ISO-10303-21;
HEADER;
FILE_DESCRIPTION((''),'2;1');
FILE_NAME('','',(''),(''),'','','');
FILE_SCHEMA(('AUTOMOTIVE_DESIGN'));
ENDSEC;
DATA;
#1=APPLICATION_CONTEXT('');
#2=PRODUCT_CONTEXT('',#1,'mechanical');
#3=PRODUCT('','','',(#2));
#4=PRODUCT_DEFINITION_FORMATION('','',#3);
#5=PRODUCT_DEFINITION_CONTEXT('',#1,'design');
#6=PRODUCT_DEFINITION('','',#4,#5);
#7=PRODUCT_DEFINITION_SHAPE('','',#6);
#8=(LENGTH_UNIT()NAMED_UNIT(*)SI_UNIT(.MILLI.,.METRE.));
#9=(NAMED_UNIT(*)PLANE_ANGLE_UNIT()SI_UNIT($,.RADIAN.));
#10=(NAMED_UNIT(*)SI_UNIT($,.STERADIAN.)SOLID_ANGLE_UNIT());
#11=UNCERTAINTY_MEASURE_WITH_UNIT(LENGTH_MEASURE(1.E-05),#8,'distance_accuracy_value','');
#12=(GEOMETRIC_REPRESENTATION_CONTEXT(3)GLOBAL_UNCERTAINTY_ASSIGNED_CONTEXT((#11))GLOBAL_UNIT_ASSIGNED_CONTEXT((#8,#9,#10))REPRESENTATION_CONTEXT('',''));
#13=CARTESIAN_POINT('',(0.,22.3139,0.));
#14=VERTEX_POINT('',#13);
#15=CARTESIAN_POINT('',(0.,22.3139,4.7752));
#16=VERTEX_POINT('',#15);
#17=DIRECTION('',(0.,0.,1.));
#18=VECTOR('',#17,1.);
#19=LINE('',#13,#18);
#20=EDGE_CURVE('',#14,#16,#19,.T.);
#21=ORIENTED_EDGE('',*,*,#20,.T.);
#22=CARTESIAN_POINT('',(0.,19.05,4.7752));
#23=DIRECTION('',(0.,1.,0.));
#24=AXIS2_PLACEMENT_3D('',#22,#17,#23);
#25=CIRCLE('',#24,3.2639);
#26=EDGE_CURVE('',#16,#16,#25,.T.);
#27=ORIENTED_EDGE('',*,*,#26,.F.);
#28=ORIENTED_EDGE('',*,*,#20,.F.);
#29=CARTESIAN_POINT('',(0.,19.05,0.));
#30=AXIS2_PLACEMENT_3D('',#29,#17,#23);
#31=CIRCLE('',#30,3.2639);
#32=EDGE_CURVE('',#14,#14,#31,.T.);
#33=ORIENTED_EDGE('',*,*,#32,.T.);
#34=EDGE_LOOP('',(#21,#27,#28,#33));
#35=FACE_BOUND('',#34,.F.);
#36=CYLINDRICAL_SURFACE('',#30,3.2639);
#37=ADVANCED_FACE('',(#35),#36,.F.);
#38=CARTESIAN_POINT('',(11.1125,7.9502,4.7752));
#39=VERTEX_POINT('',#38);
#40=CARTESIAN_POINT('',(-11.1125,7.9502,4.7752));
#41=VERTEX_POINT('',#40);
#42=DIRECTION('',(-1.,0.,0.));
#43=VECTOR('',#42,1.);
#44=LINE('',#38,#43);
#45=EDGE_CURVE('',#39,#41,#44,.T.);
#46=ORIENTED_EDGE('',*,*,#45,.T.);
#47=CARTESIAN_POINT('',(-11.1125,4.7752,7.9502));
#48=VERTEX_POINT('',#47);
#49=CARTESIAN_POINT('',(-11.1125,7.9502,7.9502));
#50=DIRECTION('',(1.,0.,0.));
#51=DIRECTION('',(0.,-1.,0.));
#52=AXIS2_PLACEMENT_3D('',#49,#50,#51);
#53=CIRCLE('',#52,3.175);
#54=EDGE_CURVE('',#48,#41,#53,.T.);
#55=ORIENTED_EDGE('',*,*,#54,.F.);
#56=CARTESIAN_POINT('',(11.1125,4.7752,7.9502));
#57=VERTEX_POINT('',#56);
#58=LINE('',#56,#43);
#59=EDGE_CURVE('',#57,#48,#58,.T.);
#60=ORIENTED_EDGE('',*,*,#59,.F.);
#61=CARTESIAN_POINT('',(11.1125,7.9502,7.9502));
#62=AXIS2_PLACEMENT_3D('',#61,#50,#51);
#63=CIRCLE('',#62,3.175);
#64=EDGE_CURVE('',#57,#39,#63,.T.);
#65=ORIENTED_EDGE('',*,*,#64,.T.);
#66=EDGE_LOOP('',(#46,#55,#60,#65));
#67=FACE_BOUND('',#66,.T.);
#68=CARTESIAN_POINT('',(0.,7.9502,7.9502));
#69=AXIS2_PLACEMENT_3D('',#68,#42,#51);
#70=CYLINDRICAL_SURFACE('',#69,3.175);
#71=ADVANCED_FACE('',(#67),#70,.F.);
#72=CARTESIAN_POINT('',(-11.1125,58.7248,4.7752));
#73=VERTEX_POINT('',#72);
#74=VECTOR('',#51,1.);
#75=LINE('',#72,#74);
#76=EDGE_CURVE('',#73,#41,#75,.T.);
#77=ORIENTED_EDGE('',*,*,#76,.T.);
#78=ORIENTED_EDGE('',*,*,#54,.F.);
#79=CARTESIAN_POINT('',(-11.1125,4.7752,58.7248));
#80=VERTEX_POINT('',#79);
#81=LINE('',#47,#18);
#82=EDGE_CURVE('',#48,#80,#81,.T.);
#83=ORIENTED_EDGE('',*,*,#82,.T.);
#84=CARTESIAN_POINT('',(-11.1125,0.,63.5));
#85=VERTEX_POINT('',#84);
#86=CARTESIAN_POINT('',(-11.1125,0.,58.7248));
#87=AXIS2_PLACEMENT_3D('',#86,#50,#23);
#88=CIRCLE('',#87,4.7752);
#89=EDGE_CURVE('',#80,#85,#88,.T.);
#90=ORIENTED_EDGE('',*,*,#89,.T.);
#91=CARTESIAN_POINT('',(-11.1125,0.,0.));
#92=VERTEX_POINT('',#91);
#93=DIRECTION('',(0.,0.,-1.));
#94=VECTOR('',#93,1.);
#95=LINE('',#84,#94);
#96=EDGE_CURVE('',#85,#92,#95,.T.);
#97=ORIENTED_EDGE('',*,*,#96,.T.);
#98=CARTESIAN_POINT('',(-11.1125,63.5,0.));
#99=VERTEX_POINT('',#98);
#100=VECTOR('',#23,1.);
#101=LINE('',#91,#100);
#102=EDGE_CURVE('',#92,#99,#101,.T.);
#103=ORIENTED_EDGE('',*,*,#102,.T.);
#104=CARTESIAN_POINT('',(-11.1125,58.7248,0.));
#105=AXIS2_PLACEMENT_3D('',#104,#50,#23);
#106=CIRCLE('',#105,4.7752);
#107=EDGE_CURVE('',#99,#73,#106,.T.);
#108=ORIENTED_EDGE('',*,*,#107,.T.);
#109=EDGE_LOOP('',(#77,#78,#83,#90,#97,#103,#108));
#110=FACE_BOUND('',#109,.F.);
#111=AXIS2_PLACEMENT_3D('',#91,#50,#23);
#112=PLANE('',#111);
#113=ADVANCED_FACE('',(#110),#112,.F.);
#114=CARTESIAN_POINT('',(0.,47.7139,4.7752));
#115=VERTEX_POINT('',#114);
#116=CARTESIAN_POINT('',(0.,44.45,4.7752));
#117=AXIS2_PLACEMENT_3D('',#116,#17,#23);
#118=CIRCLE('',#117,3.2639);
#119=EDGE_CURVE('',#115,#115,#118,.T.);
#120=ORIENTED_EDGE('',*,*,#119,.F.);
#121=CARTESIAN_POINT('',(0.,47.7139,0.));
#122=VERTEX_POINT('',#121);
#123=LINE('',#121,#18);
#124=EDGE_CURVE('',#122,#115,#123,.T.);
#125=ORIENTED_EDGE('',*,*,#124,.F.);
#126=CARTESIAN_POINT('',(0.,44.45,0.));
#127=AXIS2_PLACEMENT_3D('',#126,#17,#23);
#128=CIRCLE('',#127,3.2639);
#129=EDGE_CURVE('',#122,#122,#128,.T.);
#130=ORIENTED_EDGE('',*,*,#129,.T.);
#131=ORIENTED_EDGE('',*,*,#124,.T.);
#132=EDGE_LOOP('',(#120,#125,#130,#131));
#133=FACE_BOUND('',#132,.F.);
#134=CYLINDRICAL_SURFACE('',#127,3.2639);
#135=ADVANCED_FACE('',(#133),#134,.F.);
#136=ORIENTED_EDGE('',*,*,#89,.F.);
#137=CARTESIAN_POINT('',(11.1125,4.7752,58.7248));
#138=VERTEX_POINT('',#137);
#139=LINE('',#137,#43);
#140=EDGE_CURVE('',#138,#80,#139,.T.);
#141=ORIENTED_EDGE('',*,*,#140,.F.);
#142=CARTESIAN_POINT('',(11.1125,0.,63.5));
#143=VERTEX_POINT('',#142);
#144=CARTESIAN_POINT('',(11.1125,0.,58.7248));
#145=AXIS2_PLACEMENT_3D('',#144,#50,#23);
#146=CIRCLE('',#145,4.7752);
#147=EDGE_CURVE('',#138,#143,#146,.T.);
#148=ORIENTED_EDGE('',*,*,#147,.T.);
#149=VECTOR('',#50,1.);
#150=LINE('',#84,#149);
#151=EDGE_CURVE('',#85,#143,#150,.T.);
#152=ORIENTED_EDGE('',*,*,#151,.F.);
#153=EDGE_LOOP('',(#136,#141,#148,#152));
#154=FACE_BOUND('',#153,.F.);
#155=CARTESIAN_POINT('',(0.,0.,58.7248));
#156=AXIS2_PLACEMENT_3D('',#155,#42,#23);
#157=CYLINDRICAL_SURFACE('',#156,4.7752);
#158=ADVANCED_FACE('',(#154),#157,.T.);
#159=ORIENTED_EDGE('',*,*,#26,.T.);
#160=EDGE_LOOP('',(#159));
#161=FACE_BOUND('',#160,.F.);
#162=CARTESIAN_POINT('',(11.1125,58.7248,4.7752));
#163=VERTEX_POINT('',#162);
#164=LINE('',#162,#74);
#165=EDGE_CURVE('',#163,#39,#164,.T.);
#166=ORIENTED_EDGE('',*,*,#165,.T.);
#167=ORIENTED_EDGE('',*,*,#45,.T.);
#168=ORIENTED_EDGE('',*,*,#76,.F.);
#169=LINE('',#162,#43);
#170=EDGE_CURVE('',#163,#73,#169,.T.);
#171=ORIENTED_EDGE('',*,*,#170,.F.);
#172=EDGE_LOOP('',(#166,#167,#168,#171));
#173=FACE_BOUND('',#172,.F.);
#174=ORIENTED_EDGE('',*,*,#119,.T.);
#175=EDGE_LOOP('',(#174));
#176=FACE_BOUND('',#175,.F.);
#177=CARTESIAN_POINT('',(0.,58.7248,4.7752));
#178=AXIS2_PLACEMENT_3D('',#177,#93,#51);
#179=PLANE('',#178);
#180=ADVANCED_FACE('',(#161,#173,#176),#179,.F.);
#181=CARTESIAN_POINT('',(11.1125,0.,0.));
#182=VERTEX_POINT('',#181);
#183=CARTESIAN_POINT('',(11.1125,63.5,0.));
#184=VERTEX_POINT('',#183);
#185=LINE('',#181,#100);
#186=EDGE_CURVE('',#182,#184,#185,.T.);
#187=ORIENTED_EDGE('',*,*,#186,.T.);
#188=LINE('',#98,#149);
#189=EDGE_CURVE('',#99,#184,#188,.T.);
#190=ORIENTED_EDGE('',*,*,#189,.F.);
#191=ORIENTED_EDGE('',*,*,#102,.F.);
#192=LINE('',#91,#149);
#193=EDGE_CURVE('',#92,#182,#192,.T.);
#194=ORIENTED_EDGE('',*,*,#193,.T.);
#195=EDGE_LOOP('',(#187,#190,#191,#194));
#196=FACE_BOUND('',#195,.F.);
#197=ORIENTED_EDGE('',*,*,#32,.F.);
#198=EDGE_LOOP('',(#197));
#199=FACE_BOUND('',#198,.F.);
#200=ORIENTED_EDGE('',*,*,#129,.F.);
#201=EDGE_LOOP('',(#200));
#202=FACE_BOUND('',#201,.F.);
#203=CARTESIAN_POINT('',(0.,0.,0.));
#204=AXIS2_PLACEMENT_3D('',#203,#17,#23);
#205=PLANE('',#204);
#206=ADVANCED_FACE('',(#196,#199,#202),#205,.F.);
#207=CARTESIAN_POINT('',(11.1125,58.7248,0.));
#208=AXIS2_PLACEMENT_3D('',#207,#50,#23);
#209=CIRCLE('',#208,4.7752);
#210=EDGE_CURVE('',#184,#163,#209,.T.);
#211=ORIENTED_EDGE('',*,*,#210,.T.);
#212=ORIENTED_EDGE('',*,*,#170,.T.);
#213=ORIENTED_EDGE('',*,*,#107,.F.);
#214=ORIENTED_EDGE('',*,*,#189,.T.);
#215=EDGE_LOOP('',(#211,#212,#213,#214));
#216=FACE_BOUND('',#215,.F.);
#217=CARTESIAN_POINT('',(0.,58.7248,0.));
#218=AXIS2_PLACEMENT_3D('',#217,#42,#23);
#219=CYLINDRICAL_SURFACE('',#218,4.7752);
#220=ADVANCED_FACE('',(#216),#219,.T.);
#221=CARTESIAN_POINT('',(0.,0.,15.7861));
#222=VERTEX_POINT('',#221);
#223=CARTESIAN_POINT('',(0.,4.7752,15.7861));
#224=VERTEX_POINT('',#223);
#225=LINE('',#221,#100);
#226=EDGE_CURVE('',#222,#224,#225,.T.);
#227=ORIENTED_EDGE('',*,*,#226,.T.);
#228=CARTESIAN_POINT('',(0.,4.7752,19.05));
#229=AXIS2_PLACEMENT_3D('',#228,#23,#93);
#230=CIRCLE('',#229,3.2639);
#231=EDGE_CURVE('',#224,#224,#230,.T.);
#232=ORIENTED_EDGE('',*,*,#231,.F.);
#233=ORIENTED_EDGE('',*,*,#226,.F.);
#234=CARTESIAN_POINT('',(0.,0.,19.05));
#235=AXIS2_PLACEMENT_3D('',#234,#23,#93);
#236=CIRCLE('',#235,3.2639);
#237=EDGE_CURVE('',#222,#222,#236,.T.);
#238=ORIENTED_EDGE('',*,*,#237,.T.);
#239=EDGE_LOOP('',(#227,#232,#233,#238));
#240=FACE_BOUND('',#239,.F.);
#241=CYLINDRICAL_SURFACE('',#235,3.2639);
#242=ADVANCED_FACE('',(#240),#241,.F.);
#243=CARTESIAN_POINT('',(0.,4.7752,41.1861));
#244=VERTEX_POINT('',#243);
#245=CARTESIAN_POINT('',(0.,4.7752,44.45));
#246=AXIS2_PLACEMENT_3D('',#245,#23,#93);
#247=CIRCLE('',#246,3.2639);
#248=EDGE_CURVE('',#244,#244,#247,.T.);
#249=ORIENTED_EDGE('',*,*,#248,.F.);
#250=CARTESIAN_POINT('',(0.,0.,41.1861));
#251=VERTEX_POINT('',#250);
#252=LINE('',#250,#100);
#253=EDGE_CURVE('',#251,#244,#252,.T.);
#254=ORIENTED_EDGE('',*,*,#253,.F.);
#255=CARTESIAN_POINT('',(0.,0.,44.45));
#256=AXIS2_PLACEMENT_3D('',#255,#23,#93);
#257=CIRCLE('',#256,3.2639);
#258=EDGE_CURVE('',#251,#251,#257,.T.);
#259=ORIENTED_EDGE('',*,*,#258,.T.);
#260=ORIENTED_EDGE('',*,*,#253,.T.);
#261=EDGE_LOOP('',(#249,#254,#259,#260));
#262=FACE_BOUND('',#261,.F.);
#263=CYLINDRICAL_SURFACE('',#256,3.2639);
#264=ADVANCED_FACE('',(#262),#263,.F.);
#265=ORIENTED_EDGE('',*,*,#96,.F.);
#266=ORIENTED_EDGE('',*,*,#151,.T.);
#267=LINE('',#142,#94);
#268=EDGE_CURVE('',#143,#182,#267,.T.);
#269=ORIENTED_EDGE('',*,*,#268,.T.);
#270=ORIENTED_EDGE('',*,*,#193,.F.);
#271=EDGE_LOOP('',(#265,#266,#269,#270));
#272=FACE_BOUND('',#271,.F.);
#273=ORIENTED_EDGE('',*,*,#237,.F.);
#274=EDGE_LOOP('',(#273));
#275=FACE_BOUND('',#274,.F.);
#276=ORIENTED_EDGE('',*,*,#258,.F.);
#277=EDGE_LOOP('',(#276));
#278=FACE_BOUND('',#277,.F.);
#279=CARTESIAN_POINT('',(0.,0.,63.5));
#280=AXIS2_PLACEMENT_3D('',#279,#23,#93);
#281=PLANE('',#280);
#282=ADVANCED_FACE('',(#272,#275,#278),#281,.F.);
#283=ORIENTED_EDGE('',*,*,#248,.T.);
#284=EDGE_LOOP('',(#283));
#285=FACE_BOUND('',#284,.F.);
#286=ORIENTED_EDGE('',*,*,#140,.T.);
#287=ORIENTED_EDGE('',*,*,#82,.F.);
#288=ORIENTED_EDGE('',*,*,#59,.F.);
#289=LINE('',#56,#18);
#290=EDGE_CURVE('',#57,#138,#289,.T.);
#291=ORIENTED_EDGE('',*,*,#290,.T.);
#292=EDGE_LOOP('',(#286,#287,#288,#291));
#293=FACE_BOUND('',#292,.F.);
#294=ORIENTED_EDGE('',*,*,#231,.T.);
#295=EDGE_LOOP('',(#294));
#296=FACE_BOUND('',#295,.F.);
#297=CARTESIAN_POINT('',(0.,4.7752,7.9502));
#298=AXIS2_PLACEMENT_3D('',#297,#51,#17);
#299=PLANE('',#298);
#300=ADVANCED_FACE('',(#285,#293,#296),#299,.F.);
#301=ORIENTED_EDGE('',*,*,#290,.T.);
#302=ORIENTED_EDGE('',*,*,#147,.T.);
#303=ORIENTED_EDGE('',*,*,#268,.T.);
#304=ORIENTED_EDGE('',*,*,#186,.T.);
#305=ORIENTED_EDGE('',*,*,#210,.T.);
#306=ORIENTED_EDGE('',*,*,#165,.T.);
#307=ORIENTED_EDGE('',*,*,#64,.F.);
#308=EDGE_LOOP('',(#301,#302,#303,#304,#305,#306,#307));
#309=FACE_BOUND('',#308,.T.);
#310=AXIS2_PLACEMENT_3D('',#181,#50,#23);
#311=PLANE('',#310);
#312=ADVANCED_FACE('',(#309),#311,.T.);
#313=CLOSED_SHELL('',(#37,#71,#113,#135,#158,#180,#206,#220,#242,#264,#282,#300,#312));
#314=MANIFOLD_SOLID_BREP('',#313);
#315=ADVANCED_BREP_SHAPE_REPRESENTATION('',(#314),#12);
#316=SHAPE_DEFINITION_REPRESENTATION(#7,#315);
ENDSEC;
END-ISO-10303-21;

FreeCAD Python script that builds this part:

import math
import FreeCAD as App
import Part
import Sketcher
from FreeCAD import Vector
Q = App.Units.Quantity

doc = App.newDocument("Part")
body = doc.addObject("PartDesign::Body", "Body")

sketch1 = body.newObject("Sketcher::SketchObject", "Sketch")
sketch1.AttachmentSupport = (doc.getObject("YZ_Plane"), [""])
sketch1.MapMode = "FlatFace"
sketch1.addGeometry([
    Part.ArcOfCircle(Part.Circle(Vector(0, 58.7, 0), Vector(0, 0, 1), 4.8), math.radians(0), math.radians(90)),
    Part.LineSegment(Vector(0, 63.5, 0), Vector(0, 0, 0)),
    Part.LineSegment(Vector(0, 0, 0), Vector(63.5, 0, 0)),
    Part.ArcOfCircle(Part.Circle(Vector(58.7, 0, 0), Vector(0, 0, 1), 4.8), math.radians(0), math.radians(90)),
    Part.LineSegment(Vector(58.7, 4.8, 0), Vector(8, 4.8, 0)),
    Part.ArcOfCircle(Part.Circle(Vector(8, 8, 0), Vector(0, 0, 1), 3.2), math.radians(180), math.radians(270)),
    Part.LineSegment(Vector(4.8, 8, 0), Vector(4.8, 58.7, 0)),
], False)
sketch1.addConstraint([
    Sketcher.Constraint("Coincident", 0, 2, 1, 1),
    Sketcher.Constraint("Coincident", 1, 2, 2, 1),
    Sketcher.Constraint("Coincident", 2, 2, 3, 1),
    Sketcher.Constraint("Tangent", 3, 2, 4, 1),
    Sketcher.Constraint("Tangent", 4, 2, 5, 2),
    Sketcher.Constraint("Tangent", 5, 1, 6, 1),
    Sketcher.Constraint("Tangent", 6, 2, 0, 1),
    Sketcher.Constraint("Vertical", 1),
    Sketcher.Constraint("Horizontal", 2),
    Sketcher.Constraint("Horizontal", 4),
    Sketcher.Constraint("Vertical", 6),
    Sketcher.Constraint("Coincident", 1, 2, -1, 1),
    Sketcher.Constraint("Equal", 0, 3),
    Sketcher.Constraint("PointOnObject", 0, 3, -2),
    Sketcher.Constraint("PointOnObject", 3, 3, -1),
    Sketcher.Constraint("Equal", 2, 1),
    Sketcher.Constraint("DistanceX", 2, 1, 2, 2, Q("2.5 in")),
    Sketcher.Constraint("Radius", 0, Q("0.188 in")),
    Sketcher.Constraint("Radius", 5, Q("0.125 in")),
])
pad1 = body.newObject("PartDesign::Pad", "Pad")
pad1.Profile = sketch1
pad1.Length = Q("0.875 in")
pad1.Midplane = True

sketch2 = body.newObject("Sketcher::SketchObject", "Sketch001")
sketch2.AttachmentSupport = (doc.getObject("XY_Plane"), [""])
sketch2.MapMode = "FlatFace"
sketch2.addGeometry(Part.Circle(Vector(0, 19.1, 0), Vector(0, 0, 1), 3.3), False)
sketch2.addConstraint([
    Sketcher.Constraint("PointOnObject", 0, 3, -2),
    Sketcher.Constraint("Diameter", 0, Q("0.257 in")),
    Sketcher.Constraint("DistanceY", -1, 1, 0, 3, Q("0.75 in")),
])
doc.recompute()
hole = body.newObject("PartDesign::Hole", "Hole")
hole.Profile = sketch2
hole.ThreadType = "None"
hole.Diameter = Q("0.257 in")
hole.DepthType = "Dimension"
hole.Depth = Q("0.188 in")
hole.DrillPoint = "Flat"
hole.Reversed = True

sketch3 = body.newObject("Sketcher::SketchObject", "Sketch002")
sketch3.AttachmentSupport = (doc.getObject("XY_Plane"), [""])
sketch3.MapMode = "FlatFace"
sketch3.addGeometry(Part.Circle(Vector(0, 44.5, 0), Vector(0, 0, 1), 3.3), False)
sketch3.addConstraint([
    Sketcher.Constraint("PointOnObject", 0, 3, -2),
    Sketcher.Constraint("Diameter", 0, Q("0.257 in")),
    Sketcher.Constraint("DistanceY", -1, 1, 0, 3, Q("1.75 in")),
])
doc.recompute()
hole2 = body.newObject("PartDesign::Hole", "Hole001")
hole2.Profile = sketch3
hole2.ThreadType = "None"
hole2.Diameter = Q("0.257 in")
hole2.DepthType = "Dimension"
hole2.Depth = Q("0.188 in")
hole2.DrillPoint = "Flat"
hole2.Reversed = True

sketch4 = body.newObject("Sketcher::SketchObject", "Sketch003")
sketch4.AttachmentSupport = (doc.getObject("XZ_Plane"), [""])
sketch4.MapMode = "FlatFace"
sketch4.addGeometry(Part.Circle(Vector(0, 19.1, 0), Vector(0, 0, 1), 3.3), False)
sketch4.addConstraint([
    Sketcher.Constraint("PointOnObject", 0, 3, -2),
    Sketcher.Constraint("Diameter", 0, Q("0.257 in")),
    Sketcher.Constraint("DistanceY", -1, 1, 0, 3, Q("0.75 in")),
])
doc.recompute()
hole3 = body.newObject("PartDesign::Hole", "Hole002")
hole3.Profile = sketch4
hole3.ThreadType = "None"
hole3.Diameter = Q("0.257 in")
hole3.DepthType = "Dimension"
hole3.Depth = Q("0.188 in")
hole3.DrillPoint = "Flat"

sketch5 = body.newObject("Sketcher::SketchObject", "Sketch004")
sketch5.AttachmentSupport = (doc.getObject("XZ_Plane"), [""])
sketch5.MapMode = "FlatFace"
sketch5.addGeometry(Part.Circle(Vector(0, 44.5, 0), Vector(0, 0, 1), 3.3), False)
sketch5.addConstraint([
    Sketcher.Constraint("PointOnObject", 0, 3, -2),
    Sketcher.Constraint("Diameter", 0, Q("0.257 in")),
    Sketcher.Constraint("DistanceY", -1, 1, 0, 3, Q("1.75 in")),
])
doc.recompute()
hole4 = body.newObject("PartDesign::Hole", "Hole003")
hole4.Profile = sketch5
hole4.ThreadType = "None"
hole4.Diameter = Q("0.257 in")
hole4.DepthType = "Dimension"
hole4.Depth = Q("0.188 in")
hole4.DrillPoint = "Flat"

doc.recompute()
